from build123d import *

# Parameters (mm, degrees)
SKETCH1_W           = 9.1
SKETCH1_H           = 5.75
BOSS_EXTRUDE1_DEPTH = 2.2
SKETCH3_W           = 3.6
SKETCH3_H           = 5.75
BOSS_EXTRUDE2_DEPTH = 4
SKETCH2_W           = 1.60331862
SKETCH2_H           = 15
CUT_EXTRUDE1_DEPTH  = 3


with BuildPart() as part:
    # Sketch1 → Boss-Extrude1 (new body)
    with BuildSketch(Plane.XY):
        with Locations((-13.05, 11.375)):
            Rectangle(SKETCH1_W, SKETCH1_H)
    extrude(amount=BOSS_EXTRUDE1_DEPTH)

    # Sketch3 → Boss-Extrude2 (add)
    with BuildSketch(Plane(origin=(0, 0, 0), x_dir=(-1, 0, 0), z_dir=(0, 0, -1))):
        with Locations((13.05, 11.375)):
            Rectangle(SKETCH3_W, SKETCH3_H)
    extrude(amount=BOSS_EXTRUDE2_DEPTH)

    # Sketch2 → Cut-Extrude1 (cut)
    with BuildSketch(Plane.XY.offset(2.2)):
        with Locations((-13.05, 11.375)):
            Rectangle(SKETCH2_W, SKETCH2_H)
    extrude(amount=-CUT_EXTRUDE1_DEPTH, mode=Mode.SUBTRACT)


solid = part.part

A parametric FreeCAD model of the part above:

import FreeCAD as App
import Part
import Sketcher
from FreeCAD import Vector

doc = App.newDocument("Part")
body = doc.addObject("PartDesign::Body", "Body")

# Sketch on XY plane
sketch1 = body.newObject("Sketcher::SketchObject", "Sketch")
sketch1.AttachmentSupport = (doc.getObject("XY_Plane"), [""])
sketch1.MapMode = "FlatFace"
sketch1.addGeometry([
    Part.LineSegment(Vector(-17.6, 14.25, 0), Vector(-17.6, 8.5, 0)),
    Part.LineSegment(Vector(-17.6, 8.5, 0), Vector(-8.5, 8.5, 0)),
    Part.LineSegment(Vector(-8.5, 8.5, 0), Vector(-8.5, 14.25, 0)),
    Part.LineSegment(Vector(-8.5, 14.25, 0), Vector(-17.6, 14.25, 0)),
], False)
sketch1.addConstraint([
    Sketcher.Constraint("Coincident", 0, 2, 1, 1),
    Sketcher.Constraint("Coincident", 1, 2, 2, 1),
    Sketcher.Constraint("Coincident", 2, 2, 3, 1),
    Sketcher.Constraint("Coincident", 3, 2, 0, 1),
    Sketcher.Constraint("Vertical", 0),
    Sketcher.Constraint("Horizontal", 1),
    Sketcher.Constraint("Vertical", 2),
    Sketcher.Constraint("Horizontal", 3),
    Sketcher.Constraint("DistanceX", 1, 1, 1, 2, 9.1),
    Sketcher.Constraint("DistanceY", 0, 2, 0, 1, 5.75),
    Sketcher.Constraint("DistanceX", 0, 2, -1, 1, 17.6),
    Sketcher.Constraint("DistanceY", -1, 1, 0, 2, 8.5),
])
pad1 = body.newObject("PartDesign::Pad", "Pad")
pad1.Profile = sketch1
pad1.Length = 2.2

# Sketch on XY plane
sketch2 = body.newObject("Sketcher::SketchObject", "Sketch001")
sketch2.AttachmentSupport = (doc.getObject("XY_Plane"), [""])
sketch2.MapMode = "FlatFace"
sketch2.addGeometry([
    Part.LineSegment(Vector(-11.25, 14.25, 0), Vector(-11.25, 8.5, 0)),
    Part.LineSegment(Vector(-11.25, 8.5, 0), Vector(-14.85, 8.5, 0)),
    Part.LineSegment(Vector(-14.85, 8.5, 0), Vector(-14.85, 14.25, 0)),
    Part.LineSegment(Vector(-14.85, 14.25, 0), Vector(-11.25, 14.25, 0)),
], False)
sketch2.addConstraint([
    Sketcher.Constraint("Coincident", 0, 2, 1, 1),
    Sketcher.Constraint("Coincident", 1, 2, 2, 1),
    Sketcher.Constraint("Coincident", 2, 2, 3, 1),
    Sketcher.Constraint("Coincident", 3, 2, 0, 1),
    Sketcher.Constraint("Vertical", 0),
    Sketcher.Constraint("Horizontal", 1),
    Sketcher.Constraint("Vertical", 2),
    Sketcher.Constraint("Horizontal", 3),
    Sketcher.Constraint("DistanceX", 1, 2, 1, 1, 3.6),
    Sketcher.Constraint("DistanceY", 0, 2, 0, 1, 5.75),
    Sketcher.Constraint("DistanceY", -1, 1, 0, 2, 8.5),
    Sketcher.Constraint("DistanceX", 0, 2, -1, 1, 11.25),
])
pad2 = body.newObject("PartDesign::Pad", "Pad001")
pad2.Profile = sketch2
pad2.Length = 4
pad2.Reversed = True

# Sketch on XY plane
sketch3 = body.newObject("Sketcher::SketchObject", "Sketch002")
sketch3.AttachmentSupport = (doc.getObject("XY_Plane"), [""])
sketch3.MapMode = "FlatFace"
sketch3.AttachmentOffset = App.Placement(Vector(0, 0, 2.2), App.Rotation())
sketch3.addGeometry([
    Part.LineSegment(Vector(-13.851659, 18.875, 0), Vector(-13.851659, 3.875, 0)),
    Part.LineSegment(Vector(-13.851659, 3.875, 0), Vector(-12.248341, 3.875, 0)),
    Part.LineSegment(Vector(-12.248341, 3.875, 0), Vector(-12.248341, 18.875, 0)),
    Part.LineSegment(Vector(-12.248341, 18.875, 0), Vector(-13.851659, 18.875, 0)),
], False)
sketch3.addConstraint([
    Sketcher.Constraint("Coincident", 0, 2, 1, 1),
    Sketcher.Constraint("Coincident", 1, 2, 2, 1),
    Sketcher.Constraint("Coincident", 2, 2, 3, 1),
    Sketcher.Constraint("Coincident", 3, 2, 0, 1),
    Sketcher.Constraint("Vertical", 0),
    Sketcher.Constraint("Horizontal", 1),
    Sketcher.Constraint("Vertical", 2),
    Sketcher.Constraint("Horizontal", 3),
    Sketcher.Constraint("DistanceY", 0, 2, 0, 1, 15.0),
    Sketcher.Constraint("DistanceY", -1, 1, 0, 2, 3.875),
    Sketcher.Constraint("DistanceX", 1, 1, 1, 2, 1.603319),
    Sketcher.Constraint("DistanceX", 0, 2, -1, 1, 13.851659),
])
pocket1 = body.newObject("PartDesign::Pocket", "Pocket")
pocket1.Profile = sketch3
pocket1.Length = 3

doc.recompute()
